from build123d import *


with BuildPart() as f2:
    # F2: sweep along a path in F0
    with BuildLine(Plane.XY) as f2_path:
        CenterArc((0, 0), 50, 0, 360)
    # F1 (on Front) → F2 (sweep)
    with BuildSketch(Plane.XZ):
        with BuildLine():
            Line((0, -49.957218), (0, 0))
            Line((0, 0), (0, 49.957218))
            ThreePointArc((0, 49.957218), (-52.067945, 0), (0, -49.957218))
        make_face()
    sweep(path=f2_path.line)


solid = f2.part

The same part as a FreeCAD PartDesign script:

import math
import FreeCAD as App
import Part
import Sketcher

doc = App.newDocument("Part")
body = doc.addObject("PartDesign::Body", "Body")

# Sketch on XZ plane
sketch1 = body.newObject("Sketcher::SketchObject", "Sketch")
sketch1.AttachmentSupport = (doc.getObject("XZ_Plane"), [""])
sketch1.MapMode = "FlatFace"
sketch1.addGeometry(Part.LineSegment(App.Vector(0, -50, 0), App.Vector(0, 50, 0)), False)
sketch1.addGeometry(Part.ArcOfCircle(Part.Circle(App.Vector(-2, 0, 0), App.Vector(0, 0, 1), 50), math.radians(88), math.radians(272)), False)
sketch1.addConstraint(Sketcher.Constraint("Coincident", 0, 1, 1, 2))
sketch1.addConstraint(Sketcher.Constraint("Coincident", 1, 1, 0, 2))
sketch1.addConstraint(Sketcher.Constraint("Vertical", 0))
sketch1.addConstraint(Sketcher.Constraint("Symmetric", 0, 1, 1, 1, -1, 1))
sketch1.addConstraint(Sketcher.Constraint("Radius", 1, 50.0))
sketch1.addConstraint(Sketcher.Constraint("DistanceY", 0, 1, 0, 2, 99.914436))

# Sketch on XY plane
sketch2 = body.newObject("Sketcher::SketchObject", "Sketch001")
sketch2.AttachmentSupport = (doc.getObject("XY_Plane"), [""])
sketch2.MapMode = "FlatFace"
sketch2.addGeometry(Part.Circle(App.Vector(0, 0, 0), App.Vector(0, 0, 1), 50), False)
sketch2.addConstraint(Sketcher.Constraint("Coincident", 0, 3, -1, 1))
sketch2.addConstraint(Sketcher.Constraint("Diameter", 0, 100.0))
doc.recompute()

additivepipe = body.newObject("PartDesign::AdditivePipe", "AdditivePipe")
additivepipe.Profile = sketch1
additivepipe.Spine = (sketch2, ["Edge1"])

doc.recompute()
